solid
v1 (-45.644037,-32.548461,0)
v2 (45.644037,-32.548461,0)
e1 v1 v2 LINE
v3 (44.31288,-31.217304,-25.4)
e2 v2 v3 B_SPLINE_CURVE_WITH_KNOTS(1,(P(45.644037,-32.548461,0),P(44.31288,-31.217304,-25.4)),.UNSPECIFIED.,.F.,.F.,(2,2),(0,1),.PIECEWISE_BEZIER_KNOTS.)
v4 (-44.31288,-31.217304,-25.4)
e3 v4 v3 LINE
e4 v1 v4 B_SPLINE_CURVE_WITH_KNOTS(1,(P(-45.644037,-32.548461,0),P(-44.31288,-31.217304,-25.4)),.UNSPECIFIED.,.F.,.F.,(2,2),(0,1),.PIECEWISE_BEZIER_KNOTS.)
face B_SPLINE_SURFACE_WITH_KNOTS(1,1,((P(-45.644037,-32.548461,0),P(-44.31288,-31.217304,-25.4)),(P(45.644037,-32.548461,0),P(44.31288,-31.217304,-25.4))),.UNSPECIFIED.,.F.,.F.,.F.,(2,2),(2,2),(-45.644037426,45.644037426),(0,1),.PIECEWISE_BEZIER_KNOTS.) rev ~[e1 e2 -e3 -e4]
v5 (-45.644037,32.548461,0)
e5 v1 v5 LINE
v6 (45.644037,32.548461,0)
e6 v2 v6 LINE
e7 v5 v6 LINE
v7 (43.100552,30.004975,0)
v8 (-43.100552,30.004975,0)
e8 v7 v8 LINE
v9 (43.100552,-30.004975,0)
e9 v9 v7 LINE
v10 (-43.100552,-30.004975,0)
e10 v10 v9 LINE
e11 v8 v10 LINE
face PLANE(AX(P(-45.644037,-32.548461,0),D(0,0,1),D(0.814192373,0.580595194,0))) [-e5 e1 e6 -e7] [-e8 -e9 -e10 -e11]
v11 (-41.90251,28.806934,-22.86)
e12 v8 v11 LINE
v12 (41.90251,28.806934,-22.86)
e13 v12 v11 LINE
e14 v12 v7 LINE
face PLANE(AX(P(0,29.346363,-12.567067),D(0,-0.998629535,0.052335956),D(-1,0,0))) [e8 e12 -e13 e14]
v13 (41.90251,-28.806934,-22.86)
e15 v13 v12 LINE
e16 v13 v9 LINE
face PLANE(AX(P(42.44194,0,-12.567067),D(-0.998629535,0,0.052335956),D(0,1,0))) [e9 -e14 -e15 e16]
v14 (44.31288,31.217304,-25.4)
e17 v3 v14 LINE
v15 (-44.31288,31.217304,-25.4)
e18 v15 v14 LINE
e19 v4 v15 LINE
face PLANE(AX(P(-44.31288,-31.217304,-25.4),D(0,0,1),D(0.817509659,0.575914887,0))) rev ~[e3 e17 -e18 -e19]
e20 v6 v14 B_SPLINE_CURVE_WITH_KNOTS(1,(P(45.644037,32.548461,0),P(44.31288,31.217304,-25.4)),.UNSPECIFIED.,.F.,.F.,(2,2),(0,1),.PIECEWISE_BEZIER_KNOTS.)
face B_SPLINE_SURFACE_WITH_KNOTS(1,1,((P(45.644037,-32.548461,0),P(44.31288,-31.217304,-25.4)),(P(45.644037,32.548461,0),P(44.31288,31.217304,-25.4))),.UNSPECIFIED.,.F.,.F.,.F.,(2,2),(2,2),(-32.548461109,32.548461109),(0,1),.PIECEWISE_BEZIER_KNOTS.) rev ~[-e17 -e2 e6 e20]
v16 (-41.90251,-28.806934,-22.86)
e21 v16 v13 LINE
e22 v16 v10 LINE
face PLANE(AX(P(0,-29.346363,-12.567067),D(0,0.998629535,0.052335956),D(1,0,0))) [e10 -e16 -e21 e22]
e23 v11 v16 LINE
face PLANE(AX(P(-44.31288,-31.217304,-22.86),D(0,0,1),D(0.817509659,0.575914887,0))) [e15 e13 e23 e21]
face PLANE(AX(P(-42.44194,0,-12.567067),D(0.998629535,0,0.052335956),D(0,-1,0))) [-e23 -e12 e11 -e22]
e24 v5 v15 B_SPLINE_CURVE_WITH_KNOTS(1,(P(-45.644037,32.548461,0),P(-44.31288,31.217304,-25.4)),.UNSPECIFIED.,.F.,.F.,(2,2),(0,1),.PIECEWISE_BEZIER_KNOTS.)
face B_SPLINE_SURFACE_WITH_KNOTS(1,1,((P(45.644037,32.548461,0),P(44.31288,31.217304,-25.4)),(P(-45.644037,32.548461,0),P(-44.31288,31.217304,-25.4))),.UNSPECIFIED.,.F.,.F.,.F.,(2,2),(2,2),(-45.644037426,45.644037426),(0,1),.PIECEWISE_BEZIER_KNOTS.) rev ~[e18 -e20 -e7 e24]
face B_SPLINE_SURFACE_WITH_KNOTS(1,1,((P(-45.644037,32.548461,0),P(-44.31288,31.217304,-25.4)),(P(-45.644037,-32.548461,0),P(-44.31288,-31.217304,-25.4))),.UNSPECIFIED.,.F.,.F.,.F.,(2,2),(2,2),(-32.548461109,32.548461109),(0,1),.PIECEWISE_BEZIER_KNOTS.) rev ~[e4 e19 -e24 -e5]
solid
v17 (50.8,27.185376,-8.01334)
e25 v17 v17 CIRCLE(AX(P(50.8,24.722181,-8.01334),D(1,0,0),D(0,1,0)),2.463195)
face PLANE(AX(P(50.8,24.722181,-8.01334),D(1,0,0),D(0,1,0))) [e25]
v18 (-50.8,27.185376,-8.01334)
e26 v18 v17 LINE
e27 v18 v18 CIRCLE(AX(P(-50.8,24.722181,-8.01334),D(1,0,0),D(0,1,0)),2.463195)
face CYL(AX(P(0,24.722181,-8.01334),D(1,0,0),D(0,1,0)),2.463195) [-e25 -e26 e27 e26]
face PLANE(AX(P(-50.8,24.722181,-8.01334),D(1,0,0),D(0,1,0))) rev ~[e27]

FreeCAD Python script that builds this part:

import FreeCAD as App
import Part
import Sketcher
from FreeCAD import Vector
Q = App.Units.Quantity


def faces_at(feature, points):
    """Names of the faces that lie closest to the given points."""
    faces = feature.Shape.Faces
    near = lambda p: min(range(len(faces)), key=lambda i: faces[i].distToShape(Part.Vertex(*p))[0])
    return sorted({f"Face{near(p) + 1}" for p in points})


def add_polygon(sketch, points):
    """Adds a closed chain of lines whose ends are joined by coincident constraints."""
    first, n = sketch.GeometryCount, len(points)
    for a, b in zip(points, points[1:] + points[:1]):
        sketch.addGeometry(Part.LineSegment(App.Vector(*a, 0), App.Vector(*b, 0)), False)
    for i in range(n):
        sketch.addConstraint(Sketcher.Constraint("Coincident", first + i, 2, first + (i + 1) % n, 1))

doc = App.newDocument("Part")
body = doc.addObject("PartDesign::Body", "Body")

sketch1 = body.newObject("Sketcher::SketchObject", "Sketch")
sketch1.AttachmentSupport = (doc.getObject("XY_Plane"), [""])
sketch1.MapMode = "FlatFace"
add_polygon(sketch1, [(-45.644037, 32.548461), (-45.644037, -32.548461), (45.644037, -32.548461), (45.644037, 32.548461)])
sketch1.addConstraint([
    Sketcher.Constraint("Vertical", 0),
    Sketcher.Constraint("Horizontal", 1),
    Sketcher.Constraint("Vertical", 2),
    Sketcher.Constraint("Horizontal", 3),
    Sketcher.Constraint("Symmetric", 0, 2, 2, 2, -1, 1),
    Sketcher.Constraint("DistanceX", 1, 1, 1, 2, 91.288075),
    Sketcher.Constraint("DistanceY", 0, 2, 0, 1, 65.096922),
])
pad1 = body.newObject("PartDesign::Pad", "Pad")
pad1.Profile = sketch1
pad1.Length = Q("1 in")
pad1.Reversed = True
pad1.TaperAngle = -3
doc.recompute()

thickness = body.newObject("PartDesign::Thickness", "Thickness")
thickness.Base = (pad1, faces_at(pad1, [(0, 0, 0)]))
thickness.Value = Q("0.1 in")
thickness.Reversed = True
thickness.Join = "Arc"
body2 = doc.addObject("PartDesign::Body", "Body001")

sketch2 = body2.newObject("Sketcher::SketchObject", "Sketch001")
sketch2.AttachmentSupport = (doc.getObject("YZ_Plane001"), [""])
sketch2.MapMode = "FlatFace"
sketch2.addGeometry(Part.Circle(Vector(24.722181, -8.01334, 0), Vector(0, 0, 1), 2.463195), False)
sketch2.addConstraint([
    Sketcher.Constraint("Diameter", 0, 4.92639),
    Sketcher.Constraint("DistanceX", -1, 1, 0, 3, 24.722181),
    Sketcher.Constraint("DistanceY", 0, 3, -1, 1, 8.01334),
])
pad2 = body2.newObject("PartDesign::Pad", "Pad001")
pad2.Profile = sketch2
pad2.Length = Q("4 in")
pad2.Midplane = True

doc.recompute()
